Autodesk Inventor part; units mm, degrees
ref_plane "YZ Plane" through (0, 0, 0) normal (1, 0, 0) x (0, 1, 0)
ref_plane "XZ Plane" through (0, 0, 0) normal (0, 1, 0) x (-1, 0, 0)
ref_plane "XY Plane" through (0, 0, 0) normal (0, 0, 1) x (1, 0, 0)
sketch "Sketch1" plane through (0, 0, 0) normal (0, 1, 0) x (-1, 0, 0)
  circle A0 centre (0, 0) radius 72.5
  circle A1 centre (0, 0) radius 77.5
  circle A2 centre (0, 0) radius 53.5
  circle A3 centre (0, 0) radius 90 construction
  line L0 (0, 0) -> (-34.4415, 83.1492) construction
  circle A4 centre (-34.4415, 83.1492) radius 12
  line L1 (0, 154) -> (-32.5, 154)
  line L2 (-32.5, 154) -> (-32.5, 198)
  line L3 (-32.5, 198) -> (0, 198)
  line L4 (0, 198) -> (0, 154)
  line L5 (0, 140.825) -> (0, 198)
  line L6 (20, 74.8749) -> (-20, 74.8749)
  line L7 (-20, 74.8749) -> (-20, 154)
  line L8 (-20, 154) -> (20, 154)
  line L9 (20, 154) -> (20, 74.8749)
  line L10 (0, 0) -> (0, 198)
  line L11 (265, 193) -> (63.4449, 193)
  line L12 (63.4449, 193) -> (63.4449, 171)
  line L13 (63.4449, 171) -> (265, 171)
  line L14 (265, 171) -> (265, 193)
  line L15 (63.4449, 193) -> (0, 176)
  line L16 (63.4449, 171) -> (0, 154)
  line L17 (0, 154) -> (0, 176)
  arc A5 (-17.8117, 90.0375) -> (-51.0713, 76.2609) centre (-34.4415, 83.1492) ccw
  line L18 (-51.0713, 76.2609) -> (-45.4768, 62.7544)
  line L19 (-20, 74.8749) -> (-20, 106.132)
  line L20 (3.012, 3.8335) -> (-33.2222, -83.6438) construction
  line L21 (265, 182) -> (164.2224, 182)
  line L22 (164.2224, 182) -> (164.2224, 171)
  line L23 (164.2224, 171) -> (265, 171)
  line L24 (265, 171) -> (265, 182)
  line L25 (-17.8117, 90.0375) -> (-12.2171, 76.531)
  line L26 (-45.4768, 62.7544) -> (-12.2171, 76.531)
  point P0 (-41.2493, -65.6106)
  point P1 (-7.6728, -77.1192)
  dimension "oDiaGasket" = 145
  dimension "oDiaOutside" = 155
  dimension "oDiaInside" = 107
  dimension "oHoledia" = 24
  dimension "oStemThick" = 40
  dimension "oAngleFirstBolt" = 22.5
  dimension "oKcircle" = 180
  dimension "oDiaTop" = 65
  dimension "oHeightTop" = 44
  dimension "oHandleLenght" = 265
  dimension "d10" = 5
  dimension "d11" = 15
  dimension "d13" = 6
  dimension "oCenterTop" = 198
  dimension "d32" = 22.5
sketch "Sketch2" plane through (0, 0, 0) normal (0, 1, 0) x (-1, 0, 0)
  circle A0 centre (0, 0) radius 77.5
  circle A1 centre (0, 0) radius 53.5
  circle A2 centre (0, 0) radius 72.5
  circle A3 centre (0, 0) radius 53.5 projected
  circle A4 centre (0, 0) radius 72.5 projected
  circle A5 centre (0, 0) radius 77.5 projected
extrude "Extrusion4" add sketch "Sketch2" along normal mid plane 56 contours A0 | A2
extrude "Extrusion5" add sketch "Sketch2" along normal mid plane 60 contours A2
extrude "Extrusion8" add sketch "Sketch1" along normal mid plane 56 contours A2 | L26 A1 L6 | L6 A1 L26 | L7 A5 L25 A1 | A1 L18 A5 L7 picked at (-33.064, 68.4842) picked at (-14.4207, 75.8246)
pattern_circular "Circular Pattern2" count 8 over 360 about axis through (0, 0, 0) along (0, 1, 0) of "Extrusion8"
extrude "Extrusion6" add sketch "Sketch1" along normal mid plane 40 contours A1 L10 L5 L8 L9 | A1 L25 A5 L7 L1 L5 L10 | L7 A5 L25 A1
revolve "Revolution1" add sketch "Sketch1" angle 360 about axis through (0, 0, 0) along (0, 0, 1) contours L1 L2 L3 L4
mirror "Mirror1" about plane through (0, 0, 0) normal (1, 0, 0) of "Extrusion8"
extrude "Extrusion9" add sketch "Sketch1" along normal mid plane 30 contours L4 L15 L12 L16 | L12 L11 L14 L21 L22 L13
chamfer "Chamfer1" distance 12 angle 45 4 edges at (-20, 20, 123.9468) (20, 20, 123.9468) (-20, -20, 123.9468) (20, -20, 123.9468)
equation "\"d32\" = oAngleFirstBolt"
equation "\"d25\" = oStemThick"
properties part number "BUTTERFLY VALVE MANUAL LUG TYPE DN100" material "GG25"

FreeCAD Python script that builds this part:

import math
import FreeCAD as App
import Part
import Sketcher

V = App.Vector
Q = App.Units.Quantity


def edges_at(feature, points):
    """Names of the edges that pass closest to the given points."""
    edges = feature.Shape.Edges
    near = lambda p: min(range(len(edges)), key=lambda i: edges[i].distToShape(Part.Vertex(*p))[0])
    return sorted({f"Edge{near(p) + 1}" for p in points})

doc = App.newDocument("Part")
params = doc.addObject("Spreadsheet::Sheet", "Params")
for row, (alias, value) in enumerate([
    ("sketch1_diameter", "155 mm"),
    ("sketch1_diameter2", "107 mm"),
    ("pad1_length", "56 mm"),
    ("sketch2_diameter", "145 mm"),
    ("sketch2_diameter2", "107 mm"),
    ("pad2_length", "60 mm"),
    ("sketch3_diameter", "107 mm"),
    ("sketch3_diameter2", "24 mm"),
    ("sketch3_radius", "18 mm"),
    ("pad3_length", "56 mm"),
    ("sketch4_radius", "77.5 mm"),
    ("sketch4_width", "40 mm"),
    ("pad4_length", "40 mm"),
    ("sketch5_height", "44 mm"),
    ("sketch5_width", "32.5 mm"),
    ("revolution_angle", "360 deg"),
    ("pad5_length", "30 mm"),
    ("chamfer_size", "12 mm"),
], start=1):
    params.set(f"A{row}", alias)
    params.set(f"B{row}", "=" + value)
    params.setAlias(f"B{row}", alias)

body = doc.addObject("PartDesign::Body", "Body")

# Sketch on XZ plane
sketch1 = doc.addObject("Sketcher::SketchObject", "Sketch")
body.addObject(sketch1)
sketch1.AttachmentSupport = (doc.XZ_Plane, [""])
sketch1.MapMode = "FlatFace"
sketch1.addGeometry([
    Part.Circle(V(0, 0, 0), V(0, 0, 1), 78),
    Part.Circle(V(0, 0, 0), V(0, 0, 1), 54),
], False)
sketch1.addConstraint([
    Sketcher.Constraint("Coincident", 0, 3, -1, 1),
    Sketcher.Constraint("Coincident", 1, 3, -1, 1),
    Sketcher.Constraint("Diameter", 0, 155.0),
    Sketcher.Constraint("Diameter", 1, 107.0),
])
sketch1.setExpression("Constraints[2]", "Params.sketch1_diameter")
sketch1.setExpression("Constraints[3]", "Params.sketch1_diameter2")
pad1 = doc.addObject("PartDesign::Pad", "Pad")
body.addObject(pad1)
pad1.Profile = sketch1
pad1.setExpression("Length", "Params.pad1_length")
pad1.Midplane = True

# Sketch on XZ plane
sketch2 = doc.addObject("Sketcher::SketchObject", "Sketch001")
body.addObject(sketch2)
sketch2.AttachmentSupport = (doc.XZ_Plane, [""])
sketch2.MapMode = "FlatFace"
sketch2.addGeometry([
    Part.Circle(V(0, 0, 0), V(0, 0, 1), 72),
    Part.Circle(V(0, 0, 0), V(0, 0, 1), 54),
], False)
sketch2.addConstraint([
    Sketcher.Constraint("Coincident", 0, 3, -1, 1),
    Sketcher.Constraint("Coincident", 1, 3, -1, 1),
    Sketcher.Constraint("Diameter", 0, 145.0),
    Sketcher.Constraint("Diameter", 1, 107.0),
])
sketch2.setExpression("Constraints[2]", "Params.sketch2_diameter")
sketch2.setExpression("Constraints[3]", "Params.sketch2_diameter2")
pad2 = doc.addObject("PartDesign::Pad", "Pad001")
body.addObject(pad2)
pad2.Profile = sketch2
pad2.setExpression("Length", "Params.pad2_length")
pad2.Midplane = True

# Sketch on XZ plane
sketch3 = doc.addObject("Sketcher::SketchObject", "Sketch002")
body.addObject(sketch3)
sketch3.AttachmentSupport = (doc.XZ_Plane, [""])
sketch3.MapMode = "FlatFace"
sketch3.addGeometry([
    Part.Circle(V(0, 0, 0), V(0, 0, 1), 54),  # 0
    Part.LineSegment(V(45, 63, 0), V(12, 77, 0)),  # 1
    Part.LineSegment(V(12, 77, 0), V(18, 90, 0)),  # 2
    Part.ArcOfCircle(Part.Circle(V(34, 83, 0), V(0, 0, 1), 18), math.radians(-23), math.radians(157)),  # 3
    Part.LineSegment(V(51, 76, 0), V(45, 63, 0)),  # 4
    Part.Circle(V(34, 83, 0), V(0, 0, 1), 12),  # 5
], False)
sketch3.addConstraint([
    Sketcher.Constraint("Coincident", 1, 2, 2, 1),
    Sketcher.Constraint("Tangent", 2, 2, 3, 2),
    Sketcher.Constraint("Tangent", 3, 1, 4, 1),
    Sketcher.Constraint("Coincident", 4, 2, 1, 1),
    Sketcher.Constraint("Coincident", 0, 3, -1, 1),
    Sketcher.Constraint("Coincident", 5, 3, 3, 3),
    Sketcher.Constraint("Perpendicular", 1, 2),
    Sketcher.Constraint("Parallel", 2, 4),
    Sketcher.Constraint("Diameter", 0, 107.0),
    Sketcher.Constraint("Diameter", 5, 24.0),
    Sketcher.Constraint("Radius", 3, 18.0),
    Sketcher.Constraint("Angle", 1, Q("157.5 deg")),
    Sketcher.Constraint("DistanceY", 3, 1, 1, 2, 0.27),
    Sketcher.Constraint("DistanceX", -1, 1, 1, 2, 12.217),
    Sketcher.Constraint("DistanceY", -1, 1, 1, 2, 76.531),
])
sketch3.setExpression("Constraints[8]", "Params.sketch3_diameter")
sketch3.setExpression("Constraints[9]", "Params.sketch3_diameter2")
sketch3.setExpression("Constraints[10]", "Params.sketch3_radius")
pad3 = doc.addObject("PartDesign::Pad", "Pad002")
body.addObject(pad3)
pad3.Profile = sketch3
pad3.setExpression("Length", "Params.pad3_length")
pad3.Midplane = True
doc.recompute()

polarpattern = doc.addObject("PartDesign::PolarPattern", "PolarPattern")
body.addObject(polarpattern)
polarpattern.Originals = [pad3]
polarpattern.Axis = (doc.Y_Axis, [""])
polarpattern.Angle = 360
polarpattern.Occurrences = 8
body.Tip = polarpattern

# Sketch on XZ plane
sketch4 = doc.addObject("Sketcher::SketchObject", "Sketch003")
body.addObject(sketch4)
sketch4.AttachmentSupport = (doc.XZ_Plane, [""])
sketch4.MapMode = "FlatFace"
sketch4.addGeometry([
    Part.LineSegment(V(-20, 75, 0), V(-20, 154, 0)),
    Part.LineSegment(V(-20, 154, 0), V(20, 154, 0)),
    Part.LineSegment(V(20, 154, 0), V(20, 75, 0)),
    Part.ArcOfCircle(Part.Circle(V(0, 0, 0), V(0, 0, 1), 78), math.radians(75), math.radians(105)),
], False)
sketch4.addConstraint([
    Sketcher.Constraint("Coincident", 0, 2, 1, 1),
    Sketcher.Constraint("Coincident", 1, 2, 2, 1),
    Sketcher.Constraint("Coincident", 2, 2, 3, 1),
    Sketcher.Constraint("Coincident", 3, 2, 0, 1),
    Sketcher.Constraint("Vertical", 0),
    Sketcher.Constraint("Horizontal", 1),
    Sketcher.Constraint("Vertical", 2),
    Sketcher.Constraint("Coincident", 3, 3, -1, 1),
    Sketcher.Constraint("Horizontal", 2, 2, 3, 2),
    Sketcher.Constraint("Radius", 3, 77.5),
    Sketcher.Constraint("DistanceX", 1, 1, 1, 2, 40.0),
    Sketcher.Constraint("DistanceY", -1, 1, 0, 2, 154.0),
])
sketch4.setExpression("Constraints[9]", "Params.sketch4_radius")
sketch4.setExpression("Constraints[10]", "Params.sketch4_width")
pad4 = doc.addObject("PartDesign::Pad", "Pad003")
body.addObject(pad4)
pad4.Profile = sketch4
pad4.setExpression("Length", "Params.pad4_length")
pad4.Midplane = True

# Sketch on XZ plane
sketch5 = doc.addObject("Sketcher::SketchObject", "Sketch004")
body.addObject(sketch5)
sketch5.AttachmentSupport = (doc.XZ_Plane, [""])
sketch5.MapMode = "FlatFace"
sketch5.addGeometry([
    Part.LineSegment(V(32, 154, 0), V(0, 154, 0)),
    Part.LineSegment(V(0, 154, 0), V(0, 198, 0)),
    Part.LineSegment(V(0, 198, 0), V(32, 198, 0)),
    Part.LineSegment(V(32, 198, 0), V(32, 154, 0)),
], False)
sketch5.addConstraint([
    Sketcher.Constraint("Coincident", 0, 2, 1, 1),
    Sketcher.Constraint("Coincident", 1, 2, 2, 1),
    Sketcher.Constraint("Coincident", 2, 2, 3, 1),
    Sketcher.Constraint("Coincident", 3, 2, 0, 1),
    Sketcher.Constraint("Horizontal", 0),
    Sketcher.Constraint("Vertical", 1),
    Sketcher.Constraint("Horizontal", 2),
    Sketcher.Constraint("Vertical", 3),
    Sketcher.Constraint("PointOnObject", 0, 2, -2),
    Sketcher.Constraint("DistanceY", 1, 1, 1, 2, 44.0),
    Sketcher.Constraint("DistanceY", -1, 1, 1, 2, 198.0),
    Sketcher.Constraint("DistanceX", 0, 2, 0, 1, 32.5),
])
sketch5.setExpression("Constraints[9]", "Params.sketch5_height")
sketch5.setExpression("Constraints[11]", "Params.sketch5_width")
revolution = doc.addObject("PartDesign::Revolution", "Revolution")
body.addObject(revolution)
revolution.Profile = sketch5
revolution.ReferenceAxis = (sketch5, ["V_Axis"])
revolution.setExpression("Angle", "Params.revolution_angle")
doc.recompute()

mirrored = doc.addObject("PartDesign::Mirrored", "Mirrored")
body.addObject(mirrored)
mirrored.Originals = [pad3]
mirrored.MirrorPlane = (doc.YZ_Plane, [""])
body.Tip = mirrored

# Sketch on XZ plane
sketch6 = doc.addObject("Sketcher::SketchObject", "Sketch005")
body.addObject(sketch6)
sketch6.AttachmentSupport = (doc.XZ_Plane, [""])
sketch6.MapMode = "FlatFace"
sketch6.addGeometry([
    Part.LineSegment(V(0, 176, 0), V(0, 154, 0)),  # 0
    Part.LineSegment(V(0, 154, 0), V(-63, 171, 0)),  # 1
    Part.LineSegment(V(-63, 171, 0), V(-164, 171, 0)),  # 2
    Part.LineSegment(V(-164, 171, 0), V(-164, 182, 0)),  # 3
    Part.LineSegment(V(-164, 182, 0), V(-265, 182, 0)),  # 4
    Part.LineSegment(V(-265, 182, 0), V(-265, 193, 0)),  # 5
    Part.LineSegment(V(-265, 193, 0), V(-63, 193, 0)),  # 6
    Part.LineSegment(V(-63, 193, 0), V(0, 176, 0)),  # 7
], False)
sketch6.addConstraint([
    Sketcher.Constraint("Coincident", 0, 2, 1, 1),
    Sketcher.Constraint("Coincident", 1, 2, 2, 1),
    Sketcher.Constraint("Coincident", 2, 2, 3, 1),
    Sketcher.Constraint("Coincident", 3, 2, 4, 1),
    Sketcher.Constraint("Coincident", 4, 2, 5, 1),
    Sketcher.Constraint("Coincident", 5, 2, 6, 1),
    Sketcher.Constraint("Coincident", 6, 2, 7, 1),
    Sketcher.Constraint("Coincident", 7, 2, 0, 1),
    Sketcher.Constraint("Vertical", 0),
    Sketcher.Constraint("Horizontal", 2),
    Sketcher.Constraint("Vertical", 3),
    Sketcher.Constraint("Horizontal", 4),
    Sketcher.Constraint("Vertical", 5),
    Sketcher.Constraint("Horizontal", 6),
    Sketcher.Constraint("PointOnObject", 0, 2, -2),
    Sketcher.Constraint("Parallel", 1, 7),
    Sketcher.Constraint("Vertical", 1, 2, 6, 2),
    Sketcher.Constraint("Equal", 2, 4),
    Sketcher.Constraint("Equal", 3, 5),
    Sketcher.Constraint("Angle", 7, Q("-15 deg")),
    Sketcher.Constraint("DistanceX", 4, 2, -1, 1, 265.0),
    Sketcher.Constraint("DistanceY", 1, 2, 7, 2, 5.0),
    Sketcher.Constraint("DistanceY", 7, 2, 3, 2, 6.0),
    Sketcher.Constraint("DistanceY", -1, 1, 0, 2, 154.0),
])
pad5 = doc.addObject("PartDesign::Pad", "Pad004")
body.addObject(pad5)
pad5.Profile = sketch6
pad5.setExpression("Length", "Params.pad5_length")
pad5.Midplane = True
doc.recompute()

chamfer = doc.addObject("PartDesign::Chamfer", "Chamfer")
body.addObject(chamfer)
chamfer.Base = (pad5, edges_at(pad5, [
    (-20, 20, 123.947),
    (20, 20, 123.947),
    (-20, -20, 123.947),
    (20, -20, 123.947),
]))
chamfer.setExpression("Size", "Params.chamfer_size")

doc.recompute()
